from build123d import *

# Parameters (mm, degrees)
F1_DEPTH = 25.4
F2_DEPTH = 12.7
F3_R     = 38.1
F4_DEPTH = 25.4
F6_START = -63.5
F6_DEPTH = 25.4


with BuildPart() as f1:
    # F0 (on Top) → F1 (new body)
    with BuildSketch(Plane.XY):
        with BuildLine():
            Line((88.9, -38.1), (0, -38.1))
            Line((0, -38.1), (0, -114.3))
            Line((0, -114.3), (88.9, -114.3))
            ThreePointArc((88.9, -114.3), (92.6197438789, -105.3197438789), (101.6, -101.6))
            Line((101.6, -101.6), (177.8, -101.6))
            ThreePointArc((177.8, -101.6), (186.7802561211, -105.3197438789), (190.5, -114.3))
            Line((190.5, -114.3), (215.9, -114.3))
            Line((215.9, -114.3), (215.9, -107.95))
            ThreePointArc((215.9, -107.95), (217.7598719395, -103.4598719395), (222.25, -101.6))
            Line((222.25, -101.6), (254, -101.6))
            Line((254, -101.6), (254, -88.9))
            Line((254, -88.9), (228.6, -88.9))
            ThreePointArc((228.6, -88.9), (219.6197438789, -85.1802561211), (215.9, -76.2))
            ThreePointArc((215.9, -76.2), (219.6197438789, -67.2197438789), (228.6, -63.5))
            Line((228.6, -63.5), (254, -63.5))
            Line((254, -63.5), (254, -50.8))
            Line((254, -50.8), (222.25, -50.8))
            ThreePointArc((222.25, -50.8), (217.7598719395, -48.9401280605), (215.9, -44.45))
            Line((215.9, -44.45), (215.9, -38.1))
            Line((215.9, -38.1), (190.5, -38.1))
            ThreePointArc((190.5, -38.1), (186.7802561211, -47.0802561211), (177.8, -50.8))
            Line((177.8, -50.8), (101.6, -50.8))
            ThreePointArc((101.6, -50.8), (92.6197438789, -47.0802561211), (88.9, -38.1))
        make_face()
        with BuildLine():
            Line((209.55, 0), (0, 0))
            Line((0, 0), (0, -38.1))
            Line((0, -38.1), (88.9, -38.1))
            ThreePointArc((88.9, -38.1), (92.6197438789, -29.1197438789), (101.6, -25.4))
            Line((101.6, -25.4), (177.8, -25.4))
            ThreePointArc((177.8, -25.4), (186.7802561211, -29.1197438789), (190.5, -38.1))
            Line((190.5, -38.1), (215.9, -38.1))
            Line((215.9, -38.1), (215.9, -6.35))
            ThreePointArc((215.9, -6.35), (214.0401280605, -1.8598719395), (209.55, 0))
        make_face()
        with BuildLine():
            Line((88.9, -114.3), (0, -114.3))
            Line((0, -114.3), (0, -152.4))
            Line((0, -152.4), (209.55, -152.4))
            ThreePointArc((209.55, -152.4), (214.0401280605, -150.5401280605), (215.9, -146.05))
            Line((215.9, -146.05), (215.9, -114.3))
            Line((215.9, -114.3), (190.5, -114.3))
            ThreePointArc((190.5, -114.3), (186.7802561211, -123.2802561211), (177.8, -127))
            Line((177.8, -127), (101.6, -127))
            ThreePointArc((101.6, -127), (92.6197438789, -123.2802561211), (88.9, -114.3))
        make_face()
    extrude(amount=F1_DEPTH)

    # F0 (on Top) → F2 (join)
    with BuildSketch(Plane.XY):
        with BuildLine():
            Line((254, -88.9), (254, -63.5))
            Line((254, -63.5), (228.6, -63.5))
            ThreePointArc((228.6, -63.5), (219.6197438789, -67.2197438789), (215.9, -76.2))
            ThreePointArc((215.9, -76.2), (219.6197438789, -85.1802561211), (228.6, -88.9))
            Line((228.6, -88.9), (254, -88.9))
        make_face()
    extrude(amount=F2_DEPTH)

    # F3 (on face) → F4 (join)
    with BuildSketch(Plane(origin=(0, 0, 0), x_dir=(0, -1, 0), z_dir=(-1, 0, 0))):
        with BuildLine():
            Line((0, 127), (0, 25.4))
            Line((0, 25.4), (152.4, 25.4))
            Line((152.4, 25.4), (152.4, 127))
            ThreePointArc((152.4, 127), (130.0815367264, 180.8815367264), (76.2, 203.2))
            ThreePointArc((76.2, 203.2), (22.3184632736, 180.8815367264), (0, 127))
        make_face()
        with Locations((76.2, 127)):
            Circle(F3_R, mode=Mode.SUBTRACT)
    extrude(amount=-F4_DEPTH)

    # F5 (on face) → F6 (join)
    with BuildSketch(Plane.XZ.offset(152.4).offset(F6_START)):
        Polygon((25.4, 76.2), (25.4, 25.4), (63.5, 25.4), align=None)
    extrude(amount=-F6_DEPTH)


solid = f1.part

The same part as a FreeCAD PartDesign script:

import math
import FreeCAD as App
import Part
import Sketcher

V = App.Vector
Q = App.Units.Quantity


def add_polygon(sketch, points):
    """Adds a closed chain of lines whose ends are joined by coincident constraints."""
    first, n = sketch.GeometryCount, len(points)
    for a, b in zip(points, points[1:] + points[:1]):
        sketch.addGeometry(Part.LineSegment(App.Vector(*a, 0), App.Vector(*b, 0)), False)
    for i in range(n):
        sketch.addConstraint(Sketcher.Constraint("Coincident", first + i, 2, first + (i + 1) % n, 1))

doc = App.newDocument("Part")
body = doc.addObject("PartDesign::Body", "Body")

sketch1 = body.newObject("Sketcher::SketchObject", "Sketch")
sketch1.AttachmentSupport = (doc.getObject("XY_Plane"), [""])
sketch1.MapMode = "FlatFace"
sketch1.addGeometry(Part.ArcOfCircle(Part.Circle(V(222, -108, 0), V(0, 0, 1), 6), math.radians(90), math.radians(180)), False)
sketch1.addGeometry(Part.LineSegment(V(222, -102, 0), V(254, -102, 0)), False)
sketch1.addGeometry(Part.LineSegment(V(254, -102, 0), V(254, -89, 0)), False)
sketch1.addGeometry(Part.LineSegment(V(254, -89, 0), V(229, -89, 0)), False)
sketch1.addGeometry(Part.ArcOfCircle(Part.Circle(V(229, -76, 0), V(0, 0, 1), 13), math.radians(180), math.radians(270)), False)
sketch1.addGeometry(Part.ArcOfCircle(Part.Circle(V(229, -76, 0), V(0, 0, 1), 13), math.radians(90), math.radians(180)), False)
sketch1.addGeometry(Part.LineSegment(V(229, -64, 0), V(254, -64, 0)), False)
sketch1.addGeometry(Part.LineSegment(V(254, -64, 0), V(254, -51, 0)), False)
sketch1.addGeometry(Part.LineSegment(V(254, -51, 0), V(222, -51, 0)), False)
sketch1.addGeometry(Part.ArcOfCircle(Part.Circle(V(222, -44, 0), V(0, 0, 1), 6), math.radians(180), math.radians(270)), False)
sketch1.addGeometry(Part.LineSegment(V(216, -44, 0), V(216, -6, 0)), False)
sketch1.addGeometry(Part.ArcOfCircle(Part.Circle(V(210, -6, 0), V(0, 0, 1), 6), math.radians(0), math.radians(90)), False)
sketch1.addGeometry(Part.LineSegment(V(210, 0, 0), V(0, 0, 0)), False)
sketch1.addGeometry(Part.LineSegment(V(0, 0, 0), V(0, -152, 0)), False)
sketch1.addGeometry(Part.LineSegment(V(0, -152, 0), V(210, -152, 0)), False)
sketch1.addGeometry(Part.ArcOfCircle(Part.Circle(V(210, -146, 0), V(0, 0, 1), 6), math.radians(-90), math.radians(0)), False)
sketch1.addGeometry(Part.LineSegment(V(216, -146, 0), V(216, -108, 0)), False)
sketch1.addGeometry(Part.ArcOfCircle(Part.Circle(V(102, -114, 0), V(0, 0, 1), 13), math.radians(90), math.radians(180)), False)
sketch1.addGeometry(Part.LineSegment(V(102, -102, 0), V(178, -102, 0)), False)
sketch1.addGeometry(Part.ArcOfCircle(Part.Circle(V(178, -114, 0), V(0, 0, 1), 13), math.radians(0), math.radians(90)), False)
sketch1.addGeometry(Part.ArcOfCircle(Part.Circle(V(178, -114, 0), V(0, 0, 1), 13), math.radians(-90), math.radians(0)), False)
sketch1.addGeometry(Part.LineSegment(V(178, -127, 0), V(102, -127, 0)), False)
sketch1.addGeometry(Part.ArcOfCircle(Part.Circle(V(102, -114, 0), V(0, 0, 1), 13), math.radians(180), math.radians(270)), False)
sketch1.addGeometry(Part.ArcOfCircle(Part.Circle(V(178, -38, 0), V(0, 0, 1), 13), math.radians(-90), math.radians(0)), False)
sketch1.addGeometry(Part.LineSegment(V(178, -51, 0), V(102, -51, 0)), False)
sketch1.addGeometry(Part.ArcOfCircle(Part.Circle(V(102, -38, 0), V(0, 0, 1), 13), math.radians(180), math.radians(270)), False)
sketch1.addGeometry(Part.ArcOfCircle(Part.Circle(V(102, -38, 0), V(0, 0, 1), 13), math.radians(90), math.radians(180)), False)
sketch1.addGeometry(Part.LineSegment(V(102, -25, 0), V(178, -25, 0)), False)
sketch1.addGeometry(Part.ArcOfCircle(Part.Circle(V(178, -38, 0), V(0, 0, 1), 13), math.radians(0), math.radians(90)), False)
sketch1.addConstraint(Sketcher.Constraint("Tangent", 0, 1, 1, 1))
sketch1.addConstraint(Sketcher.Constraint("Coincident", 1, 2, 2, 1))
sketch1.addConstraint(Sketcher.Constraint("Coincident", 2, 2, 3, 1))
sketch1.addConstraint(Sketcher.Constraint("Tangent", 3, 2, 4, 2))
sketch1.addConstraint(Sketcher.Constraint("Tangent", 4, 1, 5, 2))
sketch1.addConstraint(Sketcher.Constraint("Tangent", 5, 1, 6, 1))
sketch1.addConstraint(Sketcher.Constraint("Coincident", 6, 2, 7, 1))
sketch1.addConstraint(Sketcher.Constraint("Coincident", 7, 2, 8, 1))
sketch1.addConstraint(Sketcher.Constraint("Tangent", 8, 2, 9, 2))
sketch1.addConstraint(Sketcher.Constraint("Tangent", 9, 1, 10, 1))
sketch1.addConstraint(Sketcher.Constraint("Tangent", 10, 2, 11, 1))
sketch1.addConstraint(Sketcher.Constraint("Tangent", 11, 2, 12, 1))
sketch1.addConstraint(Sketcher.Constraint("Coincident", 12, 2, 13, 1))
sketch1.addConstraint(Sketcher.Constraint("Coincident", 13, 2, 14, 1))
sketch1.addConstraint(Sketcher.Constraint("Tangent", 14, 2, 15, 1))
sketch1.addConstraint(Sketcher.Constraint("Tangent", 15, 2, 16, 1))
sketch1.addConstraint(Sketcher.Constraint("Tangent", 16, 2, 0, 2))
sketch1.addConstraint(Sketcher.Constraint("Tangent", 17, 1, 18, 1))
sketch1.addConstraint(Sketcher.Constraint("Tangent", 18, 2, 19, 2))
sketch1.addConstraint(Sketcher.Constraint("Tangent", 19, 1, 20, 2))
sketch1.addConstraint(Sketcher.Constraint("Tangent", 20, 1, 21, 1))
sketch1.addConstraint(Sketcher.Constraint("Tangent", 21, 2, 22, 2))
sketch1.addConstraint(Sketcher.Constraint("Tangent", 22, 1, 17, 2))
sketch1.addConstraint(Sketcher.Constraint("Tangent", 23, 1, 24, 1))
sketch1.addConstraint(Sketcher.Constraint("Tangent", 24, 2, 25, 2))
sketch1.addConstraint(Sketcher.Constraint("Tangent", 25, 1, 26, 2))
sketch1.addConstraint(Sketcher.Constraint("Tangent", 26, 1, 27, 1))
sketch1.addConstraint(Sketcher.Constraint("Tangent", 27, 2, 28, 2))
sketch1.addConstraint(Sketcher.Constraint("Tangent", 28, 1, 23, 2))
sketch1.addConstraint(Sketcher.Constraint("Horizontal", 1))
sketch1.addConstraint(Sketcher.Constraint("Vertical", 2))
sketch1.addConstraint(Sketcher.Constraint("Horizontal", 3))
sketch1.addConstraint(Sketcher.Constraint("Horizontal", 6))
sketch1.addConstraint(Sketcher.Constraint("Vertical", 7))
sketch1.addConstraint(Sketcher.Constraint("Horizontal", 8))
sketch1.addConstraint(Sketcher.Constraint("Vertical", 10))
sketch1.addConstraint(Sketcher.Constraint("Horizontal", 12))
sketch1.addConstraint(Sketcher.Constraint("Vertical", 13))
sketch1.addConstraint(Sketcher.Constraint("Horizontal", 14))
sketch1.addConstraint(Sketcher.Constraint("Vertical", 16))
sketch1.addConstraint(Sketcher.Constraint("Horizontal", 18))
sketch1.addConstraint(Sketcher.Constraint("Horizontal", 21))
sketch1.addConstraint(Sketcher.Constraint("Horizontal", 24))
sketch1.addConstraint(Sketcher.Constraint("Horizontal", 27))
sketch1.addConstraint(Sketcher.Constraint("Coincident", 12, 2, -1, 1))
sketch1.addConstraint(Sketcher.Constraint("Equal", 4, 5))
sketch1.addConstraint(Sketcher.Constraint("Equal", 0, 9))
sketch1.addConstraint(Sketcher.Constraint("Equal", 9, 11))
sketch1.addConstraint(Sketcher.Constraint("Equal", 11, 15))
sketch1.addConstraint(Sketcher.Constraint("Equal", 5, 17))
sketch1.addConstraint(Sketcher.Constraint("Equal", 17, 19))
sketch1.addConstraint(Sketcher.Constraint("Equal", 19, 20))
sketch1.addConstraint(Sketcher.Constraint("Equal", 22, 23))
sketch1.addConstraint(Sketcher.Constraint("Equal", 23, 25))
sketch1.addConstraint(Sketcher.Constraint("Equal", 25, 26))
sketch1.addConstraint(Sketcher.Constraint("Horizontal", 5, 3, 4, 1))
sketch1.addConstraint(Sketcher.Constraint("Horizontal", 1, 2, 17, 1))
sketch1.addConstraint(Sketcher.Constraint("Horizontal", 22, 3, 19, 1))
sketch1.addConstraint(Sketcher.Constraint("Horizontal", 19, 1, 22, 1))
sketch1.addConstraint(Sketcher.Constraint("Horizontal", 8, 2, 23, 1))
sketch1.addConstraint(Sketcher.Constraint("Horizontal", 28, 3, 25, 1))
sketch1.addConstraint(Sketcher.Constraint("Horizontal", 25, 1, 28, 1))
sketch1.addConstraint(Sketcher.Constraint("Vertical", 0, 3, 9, 3))
sketch1.addConstraint(Sketcher.Constraint("Vertical", 20, 3, 23, 3))
sketch1.addConstraint(Sketcher.Constraint("Vertical", 22, 3, 25, 3))
sketch1.addConstraint(Sketcher.Constraint("Vertical", 2, 2, 6, 2))
sketch1.addConstraint(Sketcher.Constraint("Vertical", 4, 1, 9, 1))
sketch1.addConstraint(Sketcher.Constraint("Equal", 2, 7))
sketch1.addConstraint(Sketcher.Constraint("Equal", 10, 16))
sketch1.addConstraint(Sketcher.Constraint("Radius", 4, Q("0.5 in")))
sketch1.addConstraint(Sketcher.Constraint("DistanceX", 3, 2, 3, 1, Q("1 in")))
sketch1.addConstraint(Sketcher.Constraint("DistanceX", 18, 1, 18, 2, Q("3 in")))
sketch1.addConstraint(Sketcher.Constraint("DistanceY", 13, 2, 13, 1, Q("6 in")))
sketch1.addConstraint(Sketcher.Constraint("Radius", 0, Q("0.25 in")))
sketch1.addConstraint(Sketcher.Constraint("DistanceY", 2, 1, 2, 2, Q("0.5 in")))
sketch1.addConstraint(Sketcher.Constraint("DistanceX", -1, 1, 4, 3, Q("9 in")))
sketch1.addConstraint(Sketcher.Constraint("DistanceX", -1, 1, 17, 3, Q("4 in")))
pad1 = body.newObject("PartDesign::Pad", "Pad")
pad1.Profile = sketch1
pad1.Length = Q("1 in")

sketch2 = body.newObject("Sketcher::SketchObject", "Sketch001")
sketch2.AttachmentSupport = (doc.getObject("XY_Plane"), [""])
sketch2.MapMode = "FlatFace"
sketch2.addGeometry(Part.LineSegment(V(254, -89, 0), V(254, -64, 0)), False)
sketch2.addGeometry(Part.LineSegment(V(254, -64, 0), V(229, -64, 0)), False)
sketch2.addGeometry(Part.ArcOfCircle(Part.Circle(V(229, -76, 0), V(0, 0, 1), 13), math.radians(90), math.radians(180)), False)
sketch2.addGeometry(Part.ArcOfCircle(Part.Circle(V(229, -76, 0), V(0, 0, 1), 13), math.radians(180), math.radians(270)), False)
sketch2.addGeometry(Part.LineSegment(V(229, -89, 0), V(254, -89, 0)), False)
sketch2.addConstraint(Sketcher.Constraint("Coincident", 0, 2, 1, 1))
sketch2.addConstraint(Sketcher.Constraint("Tangent", 1, 2, 2, 1))
sketch2.addConstraint(Sketcher.Constraint("Tangent", 2, 2, 3, 1))
sketch2.addConstraint(Sketcher.Constraint("Tangent", 3, 2, 4, 1))
sketch2.addConstraint(Sketcher.Constraint("Coincident", 4, 2, 0, 1))
sketch2.addConstraint(Sketcher.Constraint("Vertical", 0))
sketch2.addConstraint(Sketcher.Constraint("Horizontal", 1))
sketch2.addConstraint(Sketcher.Constraint("Horizontal", 4))
sketch2.addConstraint(Sketcher.Constraint("Equal", 2, 3))
sketch2.addConstraint(Sketcher.Constraint("Horizontal", 3, 3, 2, 2))
sketch2.addConstraint(Sketcher.Constraint("Equal", 4, 0))
sketch2.addConstraint(Sketcher.Constraint("Radius", 2, Q("0.5 in")))
sketch2.addConstraint(Sketcher.Constraint("DistanceX", -1, 1, 2, 3, Q("9 in")))
sketch2.addConstraint(Sketcher.Constraint("DistanceY", 2, 3, -1, 1, Q("3 in")))
pad2 = body.newObject("PartDesign::Pad", "Pad001")
pad2.Profile = sketch2
pad2.Length = Q("0.5 in")

sketch3 = body.newObject("Sketcher::SketchObject", "Sketch002")
sketch3.AttachmentSupport = (doc.getObject("YZ_Plane"), [""])
sketch3.MapMode = "FlatFace"
sketch3.addGeometry(Part.LineSegment(V(0, 127, 0), V(0, 25, 0)), False)
sketch3.addGeometry(Part.LineSegment(V(0, 25, 0), V(-152, 25, 0)), False)
sketch3.addGeometry(Part.LineSegment(V(-152, 25, 0), V(-152, 127, 0)), False)
sketch3.addGeometry(Part.ArcOfCircle(Part.Circle(V(-76, 127, 0), V(0, 0, 1), 76), math.radians(90), math.radians(180)), False)
sketch3.addGeometry(Part.ArcOfCircle(Part.Circle(V(-76, 127, 0), V(0, 0, 1), 76), math.radians(0), math.radians(90)), False)
sketch3.addGeometry(Part.Circle(V(-76, 127, 0), V(0, 0, 1), 38), False)
sketch3.addConstraint(Sketcher.Constraint("Coincident", 0, 2, 1, 1))
sketch3.addConstraint(Sketcher.Constraint("Coincident", 1, 2, 2, 1))
sketch3.addConstraint(Sketcher.Constraint("Tangent", 2, 2, 3, 2))
sketch3.addConstraint(Sketcher.Constraint("Tangent", 3, 1, 4, 2))
sketch3.addConstraint(Sketcher.Constraint("Tangent", 4, 1, 0, 1))
sketch3.addConstraint(Sketcher.Constraint("Vertical", 0))
sketch3.addConstraint(Sketcher.Constraint("Horizontal", 1))
sketch3.addConstraint(Sketcher.Constraint("Vertical", 2))
sketch3.addConstraint(Sketcher.Constraint("Coincident", 5, 3, 3, 3))
sketch3.addConstraint(Sketcher.Constraint("Equal", 3, 4))
sketch3.addConstraint(Sketcher.Constraint("PointOnObject", 0, 2, -2))
sketch3.addConstraint(Sketcher.Constraint("Vertical", 5, 3, 3, 1))
sketch3.addConstraint(Sketcher.Constraint("Diameter", 5, Q("3 in")))
sketch3.addConstraint(Sketcher.Constraint("Radius", 3, Q("3 in")))
sketch3.addConstraint(Sketcher.Constraint("DistanceY", 0, 2, 0, 1, Q("4 in")))
sketch3.addConstraint(Sketcher.Constraint("DistanceY", -1, 1, 3, 3, Q("5 in")))
pad3 = body.newObject("PartDesign::Pad", "Pad002")
pad3.Profile = sketch3
pad3.Length = Q("1 in")

sketch4 = body.newObject("Sketcher::SketchObject", "Sketch003")
sketch4.AttachmentSupport = (doc.getObject("XZ_Plane"), [""])
sketch4.MapMode = "FlatFace"
sketch4.AttachmentOffset = App.Placement(V(0, 0, 3.5 * 25.4), App.Rotation())
add_polygon(sketch4, [(25, 76), (25, 25), (64, 25)])
sketch4.addConstraint(Sketcher.Constraint("Vertical", 0))
sketch4.addConstraint(Sketcher.Constraint("Horizontal", 1))
sketch4.addConstraint(Sketcher.Constraint("DistanceY", 0, 2, 0, 1, Q("2 in")))
sketch4.addConstraint(Sketcher.Constraint("DistanceX", 1, 1, 1, 2, Q("1.5 in")))
sketch4.addConstraint(Sketcher.Constraint("DistanceX", -1, 1, 0, 2, Q("1 in")))
sketch4.addConstraint(Sketcher.Constraint("DistanceY", -1, 1, 0, 2, Q("1 in")))
pad4 = body.newObject("PartDesign::Pad", "Pad003")
pad4.Profile = sketch4
pad4.Length = Q("1 in")
pad4.Reversed = True

doc.recompute()
